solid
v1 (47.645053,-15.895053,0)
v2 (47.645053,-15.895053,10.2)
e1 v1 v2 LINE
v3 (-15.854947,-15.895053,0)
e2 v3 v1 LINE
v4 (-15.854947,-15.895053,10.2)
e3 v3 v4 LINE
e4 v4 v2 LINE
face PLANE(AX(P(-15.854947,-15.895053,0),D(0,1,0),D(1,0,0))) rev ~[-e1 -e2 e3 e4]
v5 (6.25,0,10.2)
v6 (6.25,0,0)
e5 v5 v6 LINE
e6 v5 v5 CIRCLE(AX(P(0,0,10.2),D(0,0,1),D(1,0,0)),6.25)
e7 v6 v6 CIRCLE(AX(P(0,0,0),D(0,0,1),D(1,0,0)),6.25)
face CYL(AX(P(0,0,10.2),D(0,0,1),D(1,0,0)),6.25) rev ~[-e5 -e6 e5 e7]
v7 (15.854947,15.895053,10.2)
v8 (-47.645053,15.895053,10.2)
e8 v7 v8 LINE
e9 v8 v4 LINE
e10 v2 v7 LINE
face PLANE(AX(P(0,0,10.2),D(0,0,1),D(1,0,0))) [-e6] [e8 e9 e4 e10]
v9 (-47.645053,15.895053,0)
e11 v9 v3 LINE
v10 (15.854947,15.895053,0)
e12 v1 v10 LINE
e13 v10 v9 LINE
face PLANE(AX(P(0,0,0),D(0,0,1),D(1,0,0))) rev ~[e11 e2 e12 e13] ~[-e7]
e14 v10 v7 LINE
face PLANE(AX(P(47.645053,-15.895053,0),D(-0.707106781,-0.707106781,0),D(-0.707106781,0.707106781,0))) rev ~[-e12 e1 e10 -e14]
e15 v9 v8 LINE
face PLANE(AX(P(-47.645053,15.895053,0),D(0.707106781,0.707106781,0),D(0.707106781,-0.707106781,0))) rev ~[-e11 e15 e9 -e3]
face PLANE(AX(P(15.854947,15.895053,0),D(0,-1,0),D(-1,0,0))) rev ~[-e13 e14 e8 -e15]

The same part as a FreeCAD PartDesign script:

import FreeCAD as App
import Part
import Sketcher
from FreeCAD import Vector
Q = App.Units.Quantity

doc = App.newDocument("Part")
body = doc.addObject("PartDesign::Body", "Body")

sketch1 = body.newObject("Sketcher::SketchObject", "Sketch")
sketch1.AttachmentSupport = (doc.getObject("XY_Plane"), [""])
sketch1.MapMode = "FlatFace"
sketch1.addGeometry([
    Part.LineSegment(Vector(16, 16, 0), Vector(-48, 16, 0)),
    Part.LineSegment(Vector(-48, 16, 0), Vector(-16, -16, 0)),
    Part.LineSegment(Vector(-16, -16, 0), Vector(48, -16, 0)),
    Part.LineSegment(Vector(48, -16, 0), Vector(16, 16, 0)),
], False)
sketch1.addConstraint([
    Sketcher.Constraint("Coincident", 0, 2, 1, 1),
    Sketcher.Constraint("Coincident", 1, 2, 2, 1),
    Sketcher.Constraint("Coincident", 2, 2, 3, 1),
    Sketcher.Constraint("Coincident", 3, 2, 0, 1),
    Sketcher.Constraint("Horizontal", 0),
    Sketcher.Constraint("Horizontal", 2),
    Sketcher.Constraint("Symmetric", 0, 2, 2, 2, -1, 1),
    Sketcher.Constraint("Parallel", 1, 3),
    Sketcher.Constraint("Angle", 1, Q("-45 deg")),
    Sketcher.Constraint("DistanceX", 0, 2, 0, 1, Q("63.5 mm")),
    Sketcher.Constraint("Distance", 1, Q("44.957999 mm")),
])
pad1 = body.newObject("PartDesign::Pad", "Pad")
pad1.Profile = sketch1
pad1.Length = 10.2

sketch2 = body.newObject("Sketcher::SketchObject", "Sketch001")
sketch2.AttachmentSupport = (doc.getObject("XY_Plane"), [""])
sketch2.MapMode = "FlatFace"
sketch2.AttachmentOffset = App.Placement(Vector(0, 0, 10.2), App.Rotation())
sketch2.addGeometry(Part.Circle(Vector(0, 0, 0), Vector(0, 0, 1), 6), False)
sketch2.addConstraint([
    Sketcher.Constraint("Coincident", 0, 3, -1, 1),
    Sketcher.Constraint("Diameter", 0, Q("12.5 mm")),
])
pocket1 = body.newObject("PartDesign::Pocket", "Pocket")
pocket1.Profile = sketch2
pocket1.Type = "ThroughAll"

doc.recompute()
